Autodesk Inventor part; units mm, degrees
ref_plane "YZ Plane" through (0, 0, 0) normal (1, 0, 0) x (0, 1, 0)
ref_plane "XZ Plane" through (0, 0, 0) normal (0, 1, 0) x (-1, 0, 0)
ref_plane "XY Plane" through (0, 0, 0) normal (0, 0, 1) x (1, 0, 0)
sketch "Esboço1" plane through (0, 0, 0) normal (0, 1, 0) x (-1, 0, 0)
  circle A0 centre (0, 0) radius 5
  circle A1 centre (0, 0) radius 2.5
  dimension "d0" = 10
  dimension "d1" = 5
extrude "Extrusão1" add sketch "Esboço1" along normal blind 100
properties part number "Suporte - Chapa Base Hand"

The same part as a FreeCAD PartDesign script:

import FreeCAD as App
import Part
import Sketcher

doc = App.newDocument("Part")
body = doc.addObject("PartDesign::Body", "Body")

sketch1 = doc.addObject("Sketcher::SketchObject", "Sketch")
body.addObject(sketch1)
sketch1.AttachmentSupport = (doc.XZ_Plane, [""])
sketch1.MapMode = "FlatFace"
sketch1.addGeometry([
    Part.Circle(App.Vector(0, 0, 0), App.Vector(0, 0, 1), 5),
    Part.Circle(App.Vector(0, 0, 0), App.Vector(0, 0, 1), 2.5),
], False)
sketch1.addConstraint([
    Sketcher.Constraint("Coincident", 0, 3, -1, 1),
    Sketcher.Constraint("Coincident", 1, 3, -1, 1),
    Sketcher.Constraint("Diameter", 0, 10.0),
    Sketcher.Constraint("Diameter", 1, 5.0),
])
pad1 = doc.addObject("PartDesign::Pad", "Pad")
body.addObject(pad1)
pad1.Profile = sketch1
pad1.Length = 100
pad1.Reversed = True

doc.recompute()
